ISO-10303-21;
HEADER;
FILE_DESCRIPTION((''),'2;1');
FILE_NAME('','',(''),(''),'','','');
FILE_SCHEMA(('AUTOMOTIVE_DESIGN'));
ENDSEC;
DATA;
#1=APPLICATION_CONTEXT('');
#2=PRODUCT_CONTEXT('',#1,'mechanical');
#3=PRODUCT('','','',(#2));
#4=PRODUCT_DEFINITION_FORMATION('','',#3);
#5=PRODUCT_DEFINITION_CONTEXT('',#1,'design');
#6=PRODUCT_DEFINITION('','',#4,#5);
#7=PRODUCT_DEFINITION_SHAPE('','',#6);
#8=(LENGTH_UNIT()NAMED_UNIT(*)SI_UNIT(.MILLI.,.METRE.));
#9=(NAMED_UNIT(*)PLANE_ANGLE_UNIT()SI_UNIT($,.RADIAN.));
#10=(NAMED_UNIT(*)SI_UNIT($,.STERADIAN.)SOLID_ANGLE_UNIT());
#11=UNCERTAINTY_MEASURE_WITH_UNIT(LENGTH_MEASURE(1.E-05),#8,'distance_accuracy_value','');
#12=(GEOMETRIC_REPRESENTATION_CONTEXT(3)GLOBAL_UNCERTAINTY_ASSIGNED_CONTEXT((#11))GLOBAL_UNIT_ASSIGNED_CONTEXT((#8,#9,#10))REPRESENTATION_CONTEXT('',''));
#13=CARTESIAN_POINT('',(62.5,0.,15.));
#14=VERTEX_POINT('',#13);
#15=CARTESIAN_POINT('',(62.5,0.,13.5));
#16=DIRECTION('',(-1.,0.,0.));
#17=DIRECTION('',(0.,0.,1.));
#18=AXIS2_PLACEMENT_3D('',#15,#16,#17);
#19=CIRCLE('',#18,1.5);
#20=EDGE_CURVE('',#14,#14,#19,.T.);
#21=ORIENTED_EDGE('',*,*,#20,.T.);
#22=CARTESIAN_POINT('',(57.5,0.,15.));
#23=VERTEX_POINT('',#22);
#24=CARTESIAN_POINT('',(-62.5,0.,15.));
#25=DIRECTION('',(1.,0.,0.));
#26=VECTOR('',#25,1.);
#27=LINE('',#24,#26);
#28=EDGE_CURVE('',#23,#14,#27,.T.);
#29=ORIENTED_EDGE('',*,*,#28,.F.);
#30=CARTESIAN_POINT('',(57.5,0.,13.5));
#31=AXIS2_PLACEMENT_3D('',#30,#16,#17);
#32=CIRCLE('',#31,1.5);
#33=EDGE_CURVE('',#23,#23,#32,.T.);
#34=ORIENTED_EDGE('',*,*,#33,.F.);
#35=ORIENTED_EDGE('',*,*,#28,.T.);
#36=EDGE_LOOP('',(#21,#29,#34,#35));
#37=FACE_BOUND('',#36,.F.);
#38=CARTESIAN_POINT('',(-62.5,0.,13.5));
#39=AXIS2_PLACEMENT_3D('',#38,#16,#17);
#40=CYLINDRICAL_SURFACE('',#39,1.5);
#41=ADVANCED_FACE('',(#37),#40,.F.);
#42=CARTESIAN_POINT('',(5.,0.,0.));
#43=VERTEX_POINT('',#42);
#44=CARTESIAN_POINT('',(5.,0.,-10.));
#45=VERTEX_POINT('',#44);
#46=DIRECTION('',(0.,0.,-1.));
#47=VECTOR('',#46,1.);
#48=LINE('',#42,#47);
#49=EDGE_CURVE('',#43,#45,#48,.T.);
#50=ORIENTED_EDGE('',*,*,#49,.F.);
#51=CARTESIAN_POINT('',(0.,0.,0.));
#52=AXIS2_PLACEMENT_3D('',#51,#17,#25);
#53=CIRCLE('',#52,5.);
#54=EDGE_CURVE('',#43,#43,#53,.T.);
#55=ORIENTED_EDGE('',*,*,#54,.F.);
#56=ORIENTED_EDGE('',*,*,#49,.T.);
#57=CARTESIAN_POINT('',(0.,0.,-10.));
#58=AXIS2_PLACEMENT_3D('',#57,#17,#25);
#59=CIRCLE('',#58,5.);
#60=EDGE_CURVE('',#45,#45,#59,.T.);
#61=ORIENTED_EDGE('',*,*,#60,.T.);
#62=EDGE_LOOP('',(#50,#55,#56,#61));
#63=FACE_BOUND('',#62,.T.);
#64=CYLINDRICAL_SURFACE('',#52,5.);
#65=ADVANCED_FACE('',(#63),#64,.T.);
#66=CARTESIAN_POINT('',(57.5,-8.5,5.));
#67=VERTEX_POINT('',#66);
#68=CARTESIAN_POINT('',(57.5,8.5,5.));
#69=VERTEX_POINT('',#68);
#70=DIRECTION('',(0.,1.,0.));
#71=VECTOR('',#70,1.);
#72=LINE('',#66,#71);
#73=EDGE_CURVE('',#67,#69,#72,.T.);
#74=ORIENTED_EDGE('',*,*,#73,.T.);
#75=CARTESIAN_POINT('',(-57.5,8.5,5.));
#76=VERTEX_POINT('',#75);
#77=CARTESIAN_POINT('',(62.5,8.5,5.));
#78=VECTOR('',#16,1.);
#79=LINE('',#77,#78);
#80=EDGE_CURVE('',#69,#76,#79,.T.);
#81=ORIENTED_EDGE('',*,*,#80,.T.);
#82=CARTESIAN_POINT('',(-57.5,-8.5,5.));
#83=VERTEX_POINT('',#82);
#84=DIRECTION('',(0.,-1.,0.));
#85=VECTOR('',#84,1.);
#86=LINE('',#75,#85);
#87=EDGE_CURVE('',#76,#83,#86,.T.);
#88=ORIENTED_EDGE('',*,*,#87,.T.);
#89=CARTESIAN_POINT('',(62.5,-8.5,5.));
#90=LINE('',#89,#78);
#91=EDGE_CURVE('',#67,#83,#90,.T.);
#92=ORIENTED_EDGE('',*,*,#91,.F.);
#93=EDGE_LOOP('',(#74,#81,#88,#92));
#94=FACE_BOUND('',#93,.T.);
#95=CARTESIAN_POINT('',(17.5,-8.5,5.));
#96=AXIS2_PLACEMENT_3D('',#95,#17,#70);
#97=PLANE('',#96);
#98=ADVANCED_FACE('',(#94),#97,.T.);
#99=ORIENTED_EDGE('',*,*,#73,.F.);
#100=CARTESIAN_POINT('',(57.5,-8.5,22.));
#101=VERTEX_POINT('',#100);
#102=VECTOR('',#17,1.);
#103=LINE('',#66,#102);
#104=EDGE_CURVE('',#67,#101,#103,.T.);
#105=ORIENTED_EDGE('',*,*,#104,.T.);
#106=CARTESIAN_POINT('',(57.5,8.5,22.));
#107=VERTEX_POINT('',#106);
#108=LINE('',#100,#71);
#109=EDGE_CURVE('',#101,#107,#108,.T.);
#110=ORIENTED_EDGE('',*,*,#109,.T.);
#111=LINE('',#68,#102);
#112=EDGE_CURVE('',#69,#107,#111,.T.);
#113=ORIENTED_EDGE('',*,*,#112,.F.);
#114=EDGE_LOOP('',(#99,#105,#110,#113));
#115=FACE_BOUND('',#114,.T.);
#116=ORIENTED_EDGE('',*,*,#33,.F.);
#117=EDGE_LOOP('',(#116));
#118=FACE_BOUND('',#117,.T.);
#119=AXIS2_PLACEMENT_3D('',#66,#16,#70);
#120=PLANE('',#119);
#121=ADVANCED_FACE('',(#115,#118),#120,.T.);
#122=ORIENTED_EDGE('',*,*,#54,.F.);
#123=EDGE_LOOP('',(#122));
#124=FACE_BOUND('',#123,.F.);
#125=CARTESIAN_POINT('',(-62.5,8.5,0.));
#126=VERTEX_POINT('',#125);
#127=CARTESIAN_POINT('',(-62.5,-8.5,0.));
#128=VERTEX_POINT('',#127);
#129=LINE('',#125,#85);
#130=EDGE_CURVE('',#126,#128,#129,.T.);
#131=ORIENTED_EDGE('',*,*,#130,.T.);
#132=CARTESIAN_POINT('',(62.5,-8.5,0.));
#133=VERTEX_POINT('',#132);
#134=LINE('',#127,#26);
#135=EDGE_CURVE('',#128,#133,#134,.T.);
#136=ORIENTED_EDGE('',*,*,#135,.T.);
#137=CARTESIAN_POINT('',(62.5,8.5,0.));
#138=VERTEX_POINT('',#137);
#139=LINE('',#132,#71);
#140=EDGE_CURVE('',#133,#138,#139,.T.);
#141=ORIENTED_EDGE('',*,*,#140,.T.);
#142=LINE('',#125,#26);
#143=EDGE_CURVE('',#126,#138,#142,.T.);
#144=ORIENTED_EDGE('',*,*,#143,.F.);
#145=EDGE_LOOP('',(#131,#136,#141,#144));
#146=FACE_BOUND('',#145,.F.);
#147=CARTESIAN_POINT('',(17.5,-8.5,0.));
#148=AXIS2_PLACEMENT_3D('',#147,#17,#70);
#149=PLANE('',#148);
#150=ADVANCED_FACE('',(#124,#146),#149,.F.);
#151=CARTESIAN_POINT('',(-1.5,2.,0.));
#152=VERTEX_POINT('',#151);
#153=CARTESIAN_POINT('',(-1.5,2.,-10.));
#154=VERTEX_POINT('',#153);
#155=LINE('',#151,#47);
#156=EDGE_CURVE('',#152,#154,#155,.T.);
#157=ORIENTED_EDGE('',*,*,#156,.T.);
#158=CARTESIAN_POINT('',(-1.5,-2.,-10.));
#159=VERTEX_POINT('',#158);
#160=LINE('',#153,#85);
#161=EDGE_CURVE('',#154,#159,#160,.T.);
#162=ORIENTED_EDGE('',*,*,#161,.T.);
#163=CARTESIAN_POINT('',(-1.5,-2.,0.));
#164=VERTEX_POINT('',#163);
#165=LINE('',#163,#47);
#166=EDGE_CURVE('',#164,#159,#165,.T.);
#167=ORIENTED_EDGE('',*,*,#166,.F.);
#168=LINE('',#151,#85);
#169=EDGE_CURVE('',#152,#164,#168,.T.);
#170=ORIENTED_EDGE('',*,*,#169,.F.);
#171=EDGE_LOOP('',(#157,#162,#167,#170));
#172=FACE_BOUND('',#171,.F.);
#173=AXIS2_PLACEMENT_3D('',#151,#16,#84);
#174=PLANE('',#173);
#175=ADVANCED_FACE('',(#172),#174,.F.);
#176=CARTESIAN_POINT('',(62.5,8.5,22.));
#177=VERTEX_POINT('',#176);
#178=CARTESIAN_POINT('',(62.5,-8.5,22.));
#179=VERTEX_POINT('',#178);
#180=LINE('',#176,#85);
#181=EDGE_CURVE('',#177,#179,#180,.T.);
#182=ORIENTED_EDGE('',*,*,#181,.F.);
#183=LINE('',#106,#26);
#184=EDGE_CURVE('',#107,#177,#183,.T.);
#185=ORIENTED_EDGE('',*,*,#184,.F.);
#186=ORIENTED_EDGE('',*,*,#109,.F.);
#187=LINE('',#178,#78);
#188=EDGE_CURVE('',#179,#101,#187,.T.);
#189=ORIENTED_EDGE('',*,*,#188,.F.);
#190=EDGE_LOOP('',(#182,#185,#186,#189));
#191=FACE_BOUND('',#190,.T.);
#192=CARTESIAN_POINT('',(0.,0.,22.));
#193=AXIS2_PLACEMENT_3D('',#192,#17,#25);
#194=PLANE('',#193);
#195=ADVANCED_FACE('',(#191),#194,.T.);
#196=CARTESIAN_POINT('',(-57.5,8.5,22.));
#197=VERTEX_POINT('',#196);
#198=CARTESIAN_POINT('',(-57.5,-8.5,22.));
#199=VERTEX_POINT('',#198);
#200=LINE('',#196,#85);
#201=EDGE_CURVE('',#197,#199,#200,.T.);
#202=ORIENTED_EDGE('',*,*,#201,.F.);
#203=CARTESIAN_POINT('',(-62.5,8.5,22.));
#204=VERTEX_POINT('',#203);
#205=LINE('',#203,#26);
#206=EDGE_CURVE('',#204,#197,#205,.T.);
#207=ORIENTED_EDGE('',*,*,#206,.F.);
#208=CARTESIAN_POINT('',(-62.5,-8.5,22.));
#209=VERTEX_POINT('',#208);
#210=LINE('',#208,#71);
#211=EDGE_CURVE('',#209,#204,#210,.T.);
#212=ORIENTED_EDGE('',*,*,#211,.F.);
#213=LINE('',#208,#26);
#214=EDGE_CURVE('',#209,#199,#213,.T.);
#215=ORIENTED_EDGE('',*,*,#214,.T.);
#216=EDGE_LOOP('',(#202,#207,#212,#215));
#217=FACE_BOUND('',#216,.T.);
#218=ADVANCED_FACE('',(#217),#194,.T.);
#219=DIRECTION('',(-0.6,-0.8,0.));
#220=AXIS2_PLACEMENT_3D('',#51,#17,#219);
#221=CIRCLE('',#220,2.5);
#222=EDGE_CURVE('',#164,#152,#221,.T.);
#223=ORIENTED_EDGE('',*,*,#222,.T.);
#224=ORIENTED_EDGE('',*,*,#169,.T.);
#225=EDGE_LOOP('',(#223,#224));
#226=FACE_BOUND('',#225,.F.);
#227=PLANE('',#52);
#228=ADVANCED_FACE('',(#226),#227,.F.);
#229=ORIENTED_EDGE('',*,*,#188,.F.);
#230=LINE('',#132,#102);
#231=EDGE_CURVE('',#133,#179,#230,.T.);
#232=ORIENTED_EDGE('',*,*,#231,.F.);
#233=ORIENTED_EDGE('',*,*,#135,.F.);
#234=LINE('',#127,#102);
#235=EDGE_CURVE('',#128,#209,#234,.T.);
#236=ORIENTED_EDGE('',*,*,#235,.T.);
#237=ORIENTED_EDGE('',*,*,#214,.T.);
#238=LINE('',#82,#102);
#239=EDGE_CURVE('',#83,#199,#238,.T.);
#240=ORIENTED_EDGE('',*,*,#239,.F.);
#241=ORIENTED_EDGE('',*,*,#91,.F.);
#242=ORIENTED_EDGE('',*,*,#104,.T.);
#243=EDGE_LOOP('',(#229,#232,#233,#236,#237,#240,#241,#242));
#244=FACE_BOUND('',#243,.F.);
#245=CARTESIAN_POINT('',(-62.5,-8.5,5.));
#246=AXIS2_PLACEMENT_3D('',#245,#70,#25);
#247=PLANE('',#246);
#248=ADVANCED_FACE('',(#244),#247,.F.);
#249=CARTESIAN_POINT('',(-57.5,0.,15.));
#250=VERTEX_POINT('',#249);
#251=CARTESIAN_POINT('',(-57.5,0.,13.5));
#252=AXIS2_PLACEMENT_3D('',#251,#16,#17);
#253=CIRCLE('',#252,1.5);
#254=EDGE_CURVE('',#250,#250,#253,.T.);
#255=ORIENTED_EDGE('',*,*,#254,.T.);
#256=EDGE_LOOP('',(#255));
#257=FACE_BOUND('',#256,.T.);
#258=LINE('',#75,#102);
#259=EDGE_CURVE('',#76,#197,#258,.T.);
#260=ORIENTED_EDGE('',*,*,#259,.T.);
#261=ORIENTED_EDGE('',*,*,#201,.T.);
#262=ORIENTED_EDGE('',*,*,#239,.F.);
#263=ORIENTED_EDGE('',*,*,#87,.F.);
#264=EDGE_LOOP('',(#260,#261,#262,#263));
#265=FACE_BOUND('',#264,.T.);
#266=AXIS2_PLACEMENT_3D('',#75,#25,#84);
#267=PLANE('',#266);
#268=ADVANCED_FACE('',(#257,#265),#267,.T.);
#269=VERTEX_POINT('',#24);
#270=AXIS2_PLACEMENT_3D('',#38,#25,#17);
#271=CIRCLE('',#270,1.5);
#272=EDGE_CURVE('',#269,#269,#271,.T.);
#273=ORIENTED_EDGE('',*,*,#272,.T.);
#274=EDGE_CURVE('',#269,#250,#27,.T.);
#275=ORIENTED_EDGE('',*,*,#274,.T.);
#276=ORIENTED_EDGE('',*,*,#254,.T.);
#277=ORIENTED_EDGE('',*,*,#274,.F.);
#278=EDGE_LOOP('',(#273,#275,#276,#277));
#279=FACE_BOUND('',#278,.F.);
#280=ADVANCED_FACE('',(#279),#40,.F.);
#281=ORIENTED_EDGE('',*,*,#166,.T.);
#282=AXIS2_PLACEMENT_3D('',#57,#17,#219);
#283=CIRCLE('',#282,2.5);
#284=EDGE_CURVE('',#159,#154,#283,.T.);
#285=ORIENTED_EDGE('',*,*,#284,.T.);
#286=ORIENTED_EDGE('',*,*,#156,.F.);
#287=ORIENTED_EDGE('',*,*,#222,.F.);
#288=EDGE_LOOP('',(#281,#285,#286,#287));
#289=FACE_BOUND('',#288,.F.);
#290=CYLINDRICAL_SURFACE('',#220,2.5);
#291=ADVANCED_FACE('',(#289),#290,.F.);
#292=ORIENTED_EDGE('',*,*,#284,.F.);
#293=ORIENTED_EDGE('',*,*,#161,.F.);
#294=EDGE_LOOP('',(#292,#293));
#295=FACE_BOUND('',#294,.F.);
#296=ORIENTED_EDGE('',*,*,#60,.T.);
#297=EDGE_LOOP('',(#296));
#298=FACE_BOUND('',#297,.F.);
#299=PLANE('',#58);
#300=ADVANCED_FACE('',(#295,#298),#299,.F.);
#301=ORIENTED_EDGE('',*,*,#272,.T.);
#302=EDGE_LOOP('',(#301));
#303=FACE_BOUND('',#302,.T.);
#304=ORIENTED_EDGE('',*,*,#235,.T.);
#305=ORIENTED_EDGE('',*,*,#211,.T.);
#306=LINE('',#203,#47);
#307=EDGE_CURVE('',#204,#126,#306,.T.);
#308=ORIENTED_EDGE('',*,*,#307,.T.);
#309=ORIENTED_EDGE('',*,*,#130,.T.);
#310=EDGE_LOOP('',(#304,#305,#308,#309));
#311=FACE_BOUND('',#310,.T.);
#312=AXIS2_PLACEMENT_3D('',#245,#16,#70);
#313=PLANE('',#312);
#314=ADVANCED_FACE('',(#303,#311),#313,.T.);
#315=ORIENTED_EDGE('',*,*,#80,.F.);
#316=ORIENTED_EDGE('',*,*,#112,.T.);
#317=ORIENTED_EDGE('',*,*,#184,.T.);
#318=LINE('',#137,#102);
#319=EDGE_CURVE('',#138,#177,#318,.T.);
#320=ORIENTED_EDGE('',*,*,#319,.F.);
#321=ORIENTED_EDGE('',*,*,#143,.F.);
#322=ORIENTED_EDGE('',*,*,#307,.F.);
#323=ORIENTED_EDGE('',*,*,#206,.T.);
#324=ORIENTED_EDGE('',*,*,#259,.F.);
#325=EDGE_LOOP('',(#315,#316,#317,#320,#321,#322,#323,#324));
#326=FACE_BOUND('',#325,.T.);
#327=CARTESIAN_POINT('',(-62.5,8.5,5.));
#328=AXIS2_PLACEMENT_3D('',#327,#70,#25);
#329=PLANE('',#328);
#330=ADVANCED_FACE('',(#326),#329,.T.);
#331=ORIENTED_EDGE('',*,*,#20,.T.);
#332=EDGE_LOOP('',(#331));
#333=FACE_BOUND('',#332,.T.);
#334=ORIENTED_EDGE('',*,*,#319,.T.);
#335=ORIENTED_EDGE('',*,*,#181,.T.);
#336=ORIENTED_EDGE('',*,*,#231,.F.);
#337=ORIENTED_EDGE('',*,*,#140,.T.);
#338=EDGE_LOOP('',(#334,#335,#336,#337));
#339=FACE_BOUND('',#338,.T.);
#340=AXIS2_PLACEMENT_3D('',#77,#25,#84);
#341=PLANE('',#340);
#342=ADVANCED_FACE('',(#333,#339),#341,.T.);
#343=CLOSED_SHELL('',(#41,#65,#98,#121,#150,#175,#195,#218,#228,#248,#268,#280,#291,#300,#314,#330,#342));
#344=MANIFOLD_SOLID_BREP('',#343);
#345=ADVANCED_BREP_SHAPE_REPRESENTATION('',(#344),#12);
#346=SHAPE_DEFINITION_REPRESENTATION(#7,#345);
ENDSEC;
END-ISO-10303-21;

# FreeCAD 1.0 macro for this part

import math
import FreeCAD as App
import Part
import Sketcher

V = App.Vector
Q = App.Units.Quantity

doc = App.newDocument("Part")
params = doc.addObject("Spreadsheet::Sheet", "Params")
for row, (alias, value) in enumerate([
    ("sketch1_diameter", "10 mm"),
    ("sketch1_radius", "2.5 mm"),
    ("sketch1_height", "4 mm"),
    ("pad1_length", "10 mm"),
    ("sketch2_width", "35 mm"),
    ("sketch2_height", "17 mm"),
    ("pad2_length", "5 mm"),
    ("sketch3_width", "17 mm"),
    ("sketch3_height", "5 mm"),
    ("pad3_length", "45 mm"),
    ("sketch4_width", "17 mm"),
    ("sketch4_height", "5 mm"),
    ("pad4_length", "45 mm"),
    ("sketch5_width", "5 mm"),
    ("sketch5_height", "17 mm"),
    ("pad5_length", "17 mm"),
    ("sketch6_width", "5 mm"),
    ("sketch6_height", "17 mm"),
    ("pad6_length", "17 mm"),
    ("sketch7_diameter", "3 mm"),
], start=1):
    params.set(f"A{row}", alias)
    params.set(f"B{row}", "=" + value)
    params.setAlias(f"B{row}", alias)

body = doc.addObject("PartDesign::Body", "Body")

sketch1 = doc.addObject("Sketcher::SketchObject", "Sketch")
body.addObject(sketch1)
sketch1.AttachmentSupport = (doc.XY_Plane, [""])
sketch1.MapMode = "FlatFace"
sketch1.addGeometry([
    Part.Circle(V(0, 0, 0), V(0, 0, 1), 5),
    Part.ArcOfCircle(Part.Circle(V(0, 0, 0), V(0, 0, 1), 2.5), math.radians(-127), math.radians(127)),
    Part.LineSegment(V(-1.5, -2, 0), V(-1.5, 2, 0)),
], False)
sketch1.addConstraint([
    Sketcher.Constraint("Coincident", 1, 1, 2, 1),
    Sketcher.Constraint("Coincident", 2, 2, 1, 2),
    Sketcher.Constraint("Vertical", 2),
    Sketcher.Constraint("Coincident", 0, 3, -1, 1),
    Sketcher.Constraint("Coincident", 1, 3, -1, 1),
    Sketcher.Constraint("Diameter", 0, Q("10 mm")),
    Sketcher.Constraint("Radius", 1, Q("2.5 mm")),
    Sketcher.Constraint("DistanceY", 2, 1, 2, 2, Q("4 mm")),
])
sketch1.setExpression("Constraints[5]", "Params.sketch1_diameter")
sketch1.setExpression("Constraints[6]", "Params.sketch1_radius")
sketch1.setExpression("Constraints[7]", "Params.sketch1_height")
pad1 = doc.addObject("PartDesign::Pad", "Pad")
body.addObject(pad1)
pad1.Profile = sketch1
pad1.setExpression("Length", "Params.pad1_length")
pad1.Reversed = True

sketch2 = doc.addObject("Sketcher::SketchObject", "Sketch001")
body.addObject(sketch2)
sketch2.AttachmentSupport = (doc.XY_Plane, [""])
sketch2.MapMode = "FlatFace"
sketch2.addGeometry([
    Part.LineSegment(V(18, 8, 0), V(-18, 8, 0)),
    Part.LineSegment(V(-18, 8, 0), V(-18, -8, 0)),
    Part.LineSegment(V(-18, -8, 0), V(18, -8, 0)),
    Part.LineSegment(V(18, -8, 0), V(18, 8, 0)),
], False)
sketch2.addConstraint([
    Sketcher.Constraint("Coincident", 0, 2, 1, 1),
    Sketcher.Constraint("Coincident", 1, 2, 2, 1),
    Sketcher.Constraint("Coincident", 2, 2, 3, 1),
    Sketcher.Constraint("Coincident", 3, 2, 0, 1),
    Sketcher.Constraint("Horizontal", 0),
    Sketcher.Constraint("Vertical", 1),
    Sketcher.Constraint("Horizontal", 2),
    Sketcher.Constraint("Vertical", 3),
    Sketcher.Constraint("Symmetric", 0, 2, 2, 2, -1, 1),
    Sketcher.Constraint("DistanceX", 0, 2, 0, 1, Q("35 mm")),
    Sketcher.Constraint("DistanceY", 1, 2, 1, 1, Q("17 mm")),
])
sketch2.setExpression("Constraints[9]", "Params.sketch2_width")
sketch2.setExpression("Constraints[10]", "Params.sketch2_height")
pad2 = doc.addObject("PartDesign::Pad", "Pad001")
body.addObject(pad2)
pad2.Profile = sketch2
pad2.setExpression("Length", "Params.pad2_length")

sketch3 = doc.addObject("Sketcher::SketchObject", "Sketch002")
body.addObject(sketch3)
sketch3.AttachmentSupport = (doc.YZ_Plane, [""])
sketch3.MapMode = "FlatFace"
sketch3.AttachmentOffset = App.Placement(V(0, 0, -17.5), App.Rotation())
sketch3.addGeometry([
    Part.LineSegment(V(8, 0, 0), V(-8, 0, 0)),
    Part.LineSegment(V(-8, 0, 0), V(-8, 5, 0)),
    Part.LineSegment(V(-8, 5, 0), V(8, 5, 0)),
    Part.LineSegment(V(8, 5, 0), V(8, 0, 0)),
], False)
sketch3.addConstraint([
    Sketcher.Constraint("Coincident", 0, 2, 1, 1),
    Sketcher.Constraint("Coincident", 1, 2, 2, 1),
    Sketcher.Constraint("Coincident", 2, 2, 3, 1),
    Sketcher.Constraint("Coincident", 3, 2, 0, 1),
    Sketcher.Constraint("Horizontal", 0),
    Sketcher.Constraint("Vertical", 1),
    Sketcher.Constraint("Horizontal", 2),
    Sketcher.Constraint("Vertical", 3),
    Sketcher.Constraint("Symmetric", 0, 2, 3, 2, -1, 1),
    Sketcher.Constraint("DistanceX", 0, 2, 0, 1, Q("17 mm")),
    Sketcher.Constraint("DistanceY", 1, 1, 1, 2, Q("5 mm")),
])
sketch3.setExpression("Constraints[9]", "Params.sketch3_width")
sketch3.setExpression("Constraints[10]", "Params.sketch3_height")
pad3 = doc.addObject("PartDesign::Pad", "Pad002")
body.addObject(pad3)
pad3.Profile = sketch3
pad3.setExpression("Length", "Params.pad3_length")
pad3.Reversed = True

sketch4 = doc.addObject("Sketcher::SketchObject", "Sketch003")
body.addObject(sketch4)
sketch4.AttachmentSupport = (doc.YZ_Plane, [""])
sketch4.MapMode = "FlatFace"
sketch4.AttachmentOffset = App.Placement(V(0, 0, 17.5), App.Rotation())
sketch4.addGeometry([
    Part.LineSegment(V(-8, 5, 0), V(-8, 0, 0)),
    Part.LineSegment(V(-8, 0, 0), V(8, 0, 0)),
    Part.LineSegment(V(8, 0, 0), V(8, 5, 0)),
    Part.LineSegment(V(8, 5, 0), V(-8, 5, 0)),
], False)
sketch4.addConstraint([
    Sketcher.Constraint("Coincident", 0, 2, 1, 1),
    Sketcher.Constraint("Coincident", 1, 2, 2, 1),
    Sketcher.Constraint("Coincident", 2, 2, 3, 1),
    Sketcher.Constraint("Coincident", 3, 2, 0, 1),
    Sketcher.Constraint("Vertical", 0),
    Sketcher.Constraint("Horizontal", 1),
    Sketcher.Constraint("Vertical", 2),
    Sketcher.Constraint("Horizontal", 3),
    Sketcher.Constraint("Symmetric", 0, 2, 1, 2, -1, 1),
    Sketcher.Constraint("DistanceX", 1, 1, 1, 2, Q("17 mm")),
    Sketcher.Constraint("DistanceY", 0, 2, 0, 1, Q("5 mm")),
])
sketch4.setExpression("Constraints[9]", "Params.sketch4_width")
sketch4.setExpression("Constraints[10]", "Params.sketch4_height")
pad4 = doc.addObject("PartDesign::Pad", "Pad003")
body.addObject(pad4)
pad4.Profile = sketch4
pad4.setExpression("Length", "Params.pad4_length")

sketch5 = doc.addObject("Sketcher::SketchObject", "Sketch004")
body.addObject(sketch5)
sketch5.AttachmentSupport = (doc.XY_Plane, [""])
sketch5.MapMode = "FlatFace"
sketch5.AttachmentOffset = App.Placement(V(0, 0, 5), App.Rotation())
sketch5.addGeometry([
    Part.LineSegment(V(58, -8, 0), V(62, -8, 0)),
    Part.LineSegment(V(62, -8, 0), V(62, 8, 0)),
    Part.LineSegment(V(62, 8, 0), V(58, 8, 0)),
    Part.LineSegment(V(58, 8, 0), V(58, -8, 0)),
], False)
sketch5.addConstraint([
    Sketcher.Constraint("Coincident", 0, 2, 1, 1),
    Sketcher.Constraint("Coincident", 1, 2, 2, 1),
    Sketcher.Constraint("Coincident", 2, 2, 3, 1),
    Sketcher.Constraint("Coincident", 3, 2, 0, 1),
    Sketcher.Constraint("Horizontal", 0),
    Sketcher.Constraint("Vertical", 1),
    Sketcher.Constraint("Horizontal", 2),
    Sketcher.Constraint("Vertical", 3),
    Sketcher.Constraint("DistanceX", 0, 1, 0, 2, Q("5 mm")),
    Sketcher.Constraint("DistanceY", 1, 1, 1, 2, Q("17 mm")),
    Sketcher.Constraint("DistanceX", -1, 1, 0, 2, Q("62.5 mm")),
    Sketcher.Constraint("DistanceY", 0, 2, -1, 1, Q("8.5 mm")),
])
sketch5.setExpression("Constraints[8]", "Params.sketch5_width")
sketch5.setExpression("Constraints[9]", "Params.sketch5_height")
pad5 = doc.addObject("PartDesign::Pad", "Pad004")
body.addObject(pad5)
pad5.Profile = sketch5
pad5.setExpression("Length", "Params.pad5_length")

sketch6 = doc.addObject("Sketcher::SketchObject", "Sketch005")
body.addObject(sketch6)
sketch6.AttachmentSupport = (doc.XY_Plane, [""])
sketch6.MapMode = "FlatFace"
sketch6.AttachmentOffset = App.Placement(V(0, 0, 5), App.Rotation())
sketch6.addGeometry([
    Part.LineSegment(V(-62, 8, 0), V(-62, -8, 0)),
    Part.LineSegment(V(-62, -8, 0), V(-58, -8, 0)),
    Part.LineSegment(V(-58, -8, 0), V(-58, 8, 0)),
    Part.LineSegment(V(-58, 8, 0), V(-62, 8, 0)),
], False)
sketch6.addConstraint([
    Sketcher.Constraint("Coincident", 0, 2, 1, 1),
    Sketcher.Constraint("Coincident", 1, 2, 2, 1),
    Sketcher.Constraint("Coincident", 2, 2, 3, 1),
    Sketcher.Constraint("Coincident", 3, 2, 0, 1),
    Sketcher.Constraint("Vertical", 0),
    Sketcher.Constraint("Horizontal", 1),
    Sketcher.Constraint("Vertical", 2),
    Sketcher.Constraint("Horizontal", 3),
    Sketcher.Constraint("DistanceX", 1, 1, 1, 2, Q("5 mm")),
    Sketcher.Constraint("DistanceY", 0, 2, 0, 1, Q("17 mm")),
    Sketcher.Constraint("DistanceX", 0, 2, -1, 1, Q("62.5 mm")),
    Sketcher.Constraint("DistanceY", 0, 2, -1, 1, Q("8.5 mm")),
])
sketch6.setExpression("Constraints[8]", "Params.sketch6_width")
sketch6.setExpression("Constraints[9]", "Params.sketch6_height")
pad6 = doc.addObject("PartDesign::Pad", "Pad005")
body.addObject(pad6)
pad6.Profile = sketch6
pad6.setExpression("Length", "Params.pad6_length")

sketch7 = doc.addObject("Sketcher::SketchObject", "Sketch006")
body.addObject(sketch7)
sketch7.AttachmentSupport = (doc.YZ_Plane, [""])
sketch7.MapMode = "FlatFace"
sketch7.AttachmentOffset = App.Placement(V(0, 0, -62.5), App.Rotation())
sketch7.addGeometry(Part.Circle(V(0, 13.5, 0), V(0, 0, 1), 1.5), False)
sketch7.addConstraint([
    Sketcher.Constraint("PointOnObject", 0, 3, -2),
    Sketcher.Constraint("Diameter", 0, Q("3 mm")),
    Sketcher.Constraint("DistanceY", -1, 1, 0, 3, Q("13.5 mm")),
])
sketch7.setExpression("Constraints[1]", "Params.sketch7_diameter")
pocket1 = doc.addObject("PartDesign::Pocket", "Pocket")
body.addObject(pocket1)
pocket1.Profile = sketch7
pocket1.Type = "ThroughAll"
pocket1.Reversed = True

doc.recompute()
